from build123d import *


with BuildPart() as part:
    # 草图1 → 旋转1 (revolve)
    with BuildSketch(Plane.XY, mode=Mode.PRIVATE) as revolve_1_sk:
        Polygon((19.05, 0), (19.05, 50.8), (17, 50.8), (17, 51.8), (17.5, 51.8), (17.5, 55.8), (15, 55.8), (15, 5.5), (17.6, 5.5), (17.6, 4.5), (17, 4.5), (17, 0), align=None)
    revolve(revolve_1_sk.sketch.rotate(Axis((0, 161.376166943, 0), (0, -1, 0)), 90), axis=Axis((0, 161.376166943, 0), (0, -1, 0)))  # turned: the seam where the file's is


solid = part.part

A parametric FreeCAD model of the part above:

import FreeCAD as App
import Part
import Sketcher
from FreeCAD import Vector


def add_polygon(sketch, points):
    """Adds a closed chain of lines whose ends are joined by coincident constraints."""
    first, n = sketch.GeometryCount, len(points)
    for a, b in zip(points, points[1:] + points[:1]):
        sketch.addGeometry(Part.LineSegment(App.Vector(*a, 0), App.Vector(*b, 0)), False)
    for i in range(n):
        sketch.addConstraint(Sketcher.Constraint("Coincident", first + i, 2, first + (i + 1) % n, 1))

doc = App.newDocument("Part")
body = doc.addObject("PartDesign::Body", "Body")

sketch1 = body.newObject("Sketcher::SketchObject", "Sketch")
sketch1.AttachmentSupport = (doc.getObject("XY_Plane"), [""])
sketch1.MapMode = "FlatFace"
add_polygon(sketch1, [(19.1, 0), (19.1, 50.8), (17, 50.8), (17, 51.8), (17.5, 51.8), (17.5, 55.8), (15, 55.8), (15, 5.5), (17.6, 5.5), (17.6, 4.5), (17, 4.5), (17, 0)])
sketch1.addConstraint([
    Sketcher.Constraint("Vertical", 0),
    Sketcher.Constraint("Horizontal", 1),
    Sketcher.Constraint("Vertical", 2),
    Sketcher.Constraint("Horizontal", 3),
    Sketcher.Constraint("Vertical", 4),
    Sketcher.Constraint("Horizontal", 5),
    Sketcher.Constraint("Vertical", 6),
    Sketcher.Constraint("Horizontal", 7),
    Sketcher.Constraint("Vertical", 8),
    Sketcher.Constraint("Horizontal", 9),
    Sketcher.Constraint("Vertical", 10),
    Sketcher.Constraint("Horizontal", 11),
    Sketcher.Constraint("PointOnObject", 10, 2, -1),
    Sketcher.Constraint("Vertical", 2, 2, 9, 2),
    Sketcher.Constraint("Equal", 2, 8),
    Sketcher.Constraint("DistanceY", 2, 1, 2, 2, 1.0),
    Sketcher.Constraint("DistanceY", 4, 1, 4, 2, 4.0),
    Sketcher.Constraint("DistanceX", 3, 1, 3, 2, 0.5),
    Sketcher.Constraint("DistanceX", 5, 2, 5, 1, 2.5),
    Sketcher.Constraint("DistanceX", 7, 1, 7, 2, 2.6),
    Sketcher.Constraint("DistanceY", 0, 1, 0, 2, 50.8),
    Sketcher.Constraint("DistanceY", 6, 2, 6, 1, 50.3),
    Sketcher.Constraint("DistanceX", -1, 1, 1, 2, 17.0),
    Sketcher.Constraint("DistanceX", 1, 2, 1, 1, 2.05),
])
revolution = body.newObject("PartDesign::Revolution", "Revolution")
revolution.Profile = sketch1
revolution.ReferenceAxis = (sketch1, ["V_Axis"])
revolution.Angle = 360

doc.recompute()
